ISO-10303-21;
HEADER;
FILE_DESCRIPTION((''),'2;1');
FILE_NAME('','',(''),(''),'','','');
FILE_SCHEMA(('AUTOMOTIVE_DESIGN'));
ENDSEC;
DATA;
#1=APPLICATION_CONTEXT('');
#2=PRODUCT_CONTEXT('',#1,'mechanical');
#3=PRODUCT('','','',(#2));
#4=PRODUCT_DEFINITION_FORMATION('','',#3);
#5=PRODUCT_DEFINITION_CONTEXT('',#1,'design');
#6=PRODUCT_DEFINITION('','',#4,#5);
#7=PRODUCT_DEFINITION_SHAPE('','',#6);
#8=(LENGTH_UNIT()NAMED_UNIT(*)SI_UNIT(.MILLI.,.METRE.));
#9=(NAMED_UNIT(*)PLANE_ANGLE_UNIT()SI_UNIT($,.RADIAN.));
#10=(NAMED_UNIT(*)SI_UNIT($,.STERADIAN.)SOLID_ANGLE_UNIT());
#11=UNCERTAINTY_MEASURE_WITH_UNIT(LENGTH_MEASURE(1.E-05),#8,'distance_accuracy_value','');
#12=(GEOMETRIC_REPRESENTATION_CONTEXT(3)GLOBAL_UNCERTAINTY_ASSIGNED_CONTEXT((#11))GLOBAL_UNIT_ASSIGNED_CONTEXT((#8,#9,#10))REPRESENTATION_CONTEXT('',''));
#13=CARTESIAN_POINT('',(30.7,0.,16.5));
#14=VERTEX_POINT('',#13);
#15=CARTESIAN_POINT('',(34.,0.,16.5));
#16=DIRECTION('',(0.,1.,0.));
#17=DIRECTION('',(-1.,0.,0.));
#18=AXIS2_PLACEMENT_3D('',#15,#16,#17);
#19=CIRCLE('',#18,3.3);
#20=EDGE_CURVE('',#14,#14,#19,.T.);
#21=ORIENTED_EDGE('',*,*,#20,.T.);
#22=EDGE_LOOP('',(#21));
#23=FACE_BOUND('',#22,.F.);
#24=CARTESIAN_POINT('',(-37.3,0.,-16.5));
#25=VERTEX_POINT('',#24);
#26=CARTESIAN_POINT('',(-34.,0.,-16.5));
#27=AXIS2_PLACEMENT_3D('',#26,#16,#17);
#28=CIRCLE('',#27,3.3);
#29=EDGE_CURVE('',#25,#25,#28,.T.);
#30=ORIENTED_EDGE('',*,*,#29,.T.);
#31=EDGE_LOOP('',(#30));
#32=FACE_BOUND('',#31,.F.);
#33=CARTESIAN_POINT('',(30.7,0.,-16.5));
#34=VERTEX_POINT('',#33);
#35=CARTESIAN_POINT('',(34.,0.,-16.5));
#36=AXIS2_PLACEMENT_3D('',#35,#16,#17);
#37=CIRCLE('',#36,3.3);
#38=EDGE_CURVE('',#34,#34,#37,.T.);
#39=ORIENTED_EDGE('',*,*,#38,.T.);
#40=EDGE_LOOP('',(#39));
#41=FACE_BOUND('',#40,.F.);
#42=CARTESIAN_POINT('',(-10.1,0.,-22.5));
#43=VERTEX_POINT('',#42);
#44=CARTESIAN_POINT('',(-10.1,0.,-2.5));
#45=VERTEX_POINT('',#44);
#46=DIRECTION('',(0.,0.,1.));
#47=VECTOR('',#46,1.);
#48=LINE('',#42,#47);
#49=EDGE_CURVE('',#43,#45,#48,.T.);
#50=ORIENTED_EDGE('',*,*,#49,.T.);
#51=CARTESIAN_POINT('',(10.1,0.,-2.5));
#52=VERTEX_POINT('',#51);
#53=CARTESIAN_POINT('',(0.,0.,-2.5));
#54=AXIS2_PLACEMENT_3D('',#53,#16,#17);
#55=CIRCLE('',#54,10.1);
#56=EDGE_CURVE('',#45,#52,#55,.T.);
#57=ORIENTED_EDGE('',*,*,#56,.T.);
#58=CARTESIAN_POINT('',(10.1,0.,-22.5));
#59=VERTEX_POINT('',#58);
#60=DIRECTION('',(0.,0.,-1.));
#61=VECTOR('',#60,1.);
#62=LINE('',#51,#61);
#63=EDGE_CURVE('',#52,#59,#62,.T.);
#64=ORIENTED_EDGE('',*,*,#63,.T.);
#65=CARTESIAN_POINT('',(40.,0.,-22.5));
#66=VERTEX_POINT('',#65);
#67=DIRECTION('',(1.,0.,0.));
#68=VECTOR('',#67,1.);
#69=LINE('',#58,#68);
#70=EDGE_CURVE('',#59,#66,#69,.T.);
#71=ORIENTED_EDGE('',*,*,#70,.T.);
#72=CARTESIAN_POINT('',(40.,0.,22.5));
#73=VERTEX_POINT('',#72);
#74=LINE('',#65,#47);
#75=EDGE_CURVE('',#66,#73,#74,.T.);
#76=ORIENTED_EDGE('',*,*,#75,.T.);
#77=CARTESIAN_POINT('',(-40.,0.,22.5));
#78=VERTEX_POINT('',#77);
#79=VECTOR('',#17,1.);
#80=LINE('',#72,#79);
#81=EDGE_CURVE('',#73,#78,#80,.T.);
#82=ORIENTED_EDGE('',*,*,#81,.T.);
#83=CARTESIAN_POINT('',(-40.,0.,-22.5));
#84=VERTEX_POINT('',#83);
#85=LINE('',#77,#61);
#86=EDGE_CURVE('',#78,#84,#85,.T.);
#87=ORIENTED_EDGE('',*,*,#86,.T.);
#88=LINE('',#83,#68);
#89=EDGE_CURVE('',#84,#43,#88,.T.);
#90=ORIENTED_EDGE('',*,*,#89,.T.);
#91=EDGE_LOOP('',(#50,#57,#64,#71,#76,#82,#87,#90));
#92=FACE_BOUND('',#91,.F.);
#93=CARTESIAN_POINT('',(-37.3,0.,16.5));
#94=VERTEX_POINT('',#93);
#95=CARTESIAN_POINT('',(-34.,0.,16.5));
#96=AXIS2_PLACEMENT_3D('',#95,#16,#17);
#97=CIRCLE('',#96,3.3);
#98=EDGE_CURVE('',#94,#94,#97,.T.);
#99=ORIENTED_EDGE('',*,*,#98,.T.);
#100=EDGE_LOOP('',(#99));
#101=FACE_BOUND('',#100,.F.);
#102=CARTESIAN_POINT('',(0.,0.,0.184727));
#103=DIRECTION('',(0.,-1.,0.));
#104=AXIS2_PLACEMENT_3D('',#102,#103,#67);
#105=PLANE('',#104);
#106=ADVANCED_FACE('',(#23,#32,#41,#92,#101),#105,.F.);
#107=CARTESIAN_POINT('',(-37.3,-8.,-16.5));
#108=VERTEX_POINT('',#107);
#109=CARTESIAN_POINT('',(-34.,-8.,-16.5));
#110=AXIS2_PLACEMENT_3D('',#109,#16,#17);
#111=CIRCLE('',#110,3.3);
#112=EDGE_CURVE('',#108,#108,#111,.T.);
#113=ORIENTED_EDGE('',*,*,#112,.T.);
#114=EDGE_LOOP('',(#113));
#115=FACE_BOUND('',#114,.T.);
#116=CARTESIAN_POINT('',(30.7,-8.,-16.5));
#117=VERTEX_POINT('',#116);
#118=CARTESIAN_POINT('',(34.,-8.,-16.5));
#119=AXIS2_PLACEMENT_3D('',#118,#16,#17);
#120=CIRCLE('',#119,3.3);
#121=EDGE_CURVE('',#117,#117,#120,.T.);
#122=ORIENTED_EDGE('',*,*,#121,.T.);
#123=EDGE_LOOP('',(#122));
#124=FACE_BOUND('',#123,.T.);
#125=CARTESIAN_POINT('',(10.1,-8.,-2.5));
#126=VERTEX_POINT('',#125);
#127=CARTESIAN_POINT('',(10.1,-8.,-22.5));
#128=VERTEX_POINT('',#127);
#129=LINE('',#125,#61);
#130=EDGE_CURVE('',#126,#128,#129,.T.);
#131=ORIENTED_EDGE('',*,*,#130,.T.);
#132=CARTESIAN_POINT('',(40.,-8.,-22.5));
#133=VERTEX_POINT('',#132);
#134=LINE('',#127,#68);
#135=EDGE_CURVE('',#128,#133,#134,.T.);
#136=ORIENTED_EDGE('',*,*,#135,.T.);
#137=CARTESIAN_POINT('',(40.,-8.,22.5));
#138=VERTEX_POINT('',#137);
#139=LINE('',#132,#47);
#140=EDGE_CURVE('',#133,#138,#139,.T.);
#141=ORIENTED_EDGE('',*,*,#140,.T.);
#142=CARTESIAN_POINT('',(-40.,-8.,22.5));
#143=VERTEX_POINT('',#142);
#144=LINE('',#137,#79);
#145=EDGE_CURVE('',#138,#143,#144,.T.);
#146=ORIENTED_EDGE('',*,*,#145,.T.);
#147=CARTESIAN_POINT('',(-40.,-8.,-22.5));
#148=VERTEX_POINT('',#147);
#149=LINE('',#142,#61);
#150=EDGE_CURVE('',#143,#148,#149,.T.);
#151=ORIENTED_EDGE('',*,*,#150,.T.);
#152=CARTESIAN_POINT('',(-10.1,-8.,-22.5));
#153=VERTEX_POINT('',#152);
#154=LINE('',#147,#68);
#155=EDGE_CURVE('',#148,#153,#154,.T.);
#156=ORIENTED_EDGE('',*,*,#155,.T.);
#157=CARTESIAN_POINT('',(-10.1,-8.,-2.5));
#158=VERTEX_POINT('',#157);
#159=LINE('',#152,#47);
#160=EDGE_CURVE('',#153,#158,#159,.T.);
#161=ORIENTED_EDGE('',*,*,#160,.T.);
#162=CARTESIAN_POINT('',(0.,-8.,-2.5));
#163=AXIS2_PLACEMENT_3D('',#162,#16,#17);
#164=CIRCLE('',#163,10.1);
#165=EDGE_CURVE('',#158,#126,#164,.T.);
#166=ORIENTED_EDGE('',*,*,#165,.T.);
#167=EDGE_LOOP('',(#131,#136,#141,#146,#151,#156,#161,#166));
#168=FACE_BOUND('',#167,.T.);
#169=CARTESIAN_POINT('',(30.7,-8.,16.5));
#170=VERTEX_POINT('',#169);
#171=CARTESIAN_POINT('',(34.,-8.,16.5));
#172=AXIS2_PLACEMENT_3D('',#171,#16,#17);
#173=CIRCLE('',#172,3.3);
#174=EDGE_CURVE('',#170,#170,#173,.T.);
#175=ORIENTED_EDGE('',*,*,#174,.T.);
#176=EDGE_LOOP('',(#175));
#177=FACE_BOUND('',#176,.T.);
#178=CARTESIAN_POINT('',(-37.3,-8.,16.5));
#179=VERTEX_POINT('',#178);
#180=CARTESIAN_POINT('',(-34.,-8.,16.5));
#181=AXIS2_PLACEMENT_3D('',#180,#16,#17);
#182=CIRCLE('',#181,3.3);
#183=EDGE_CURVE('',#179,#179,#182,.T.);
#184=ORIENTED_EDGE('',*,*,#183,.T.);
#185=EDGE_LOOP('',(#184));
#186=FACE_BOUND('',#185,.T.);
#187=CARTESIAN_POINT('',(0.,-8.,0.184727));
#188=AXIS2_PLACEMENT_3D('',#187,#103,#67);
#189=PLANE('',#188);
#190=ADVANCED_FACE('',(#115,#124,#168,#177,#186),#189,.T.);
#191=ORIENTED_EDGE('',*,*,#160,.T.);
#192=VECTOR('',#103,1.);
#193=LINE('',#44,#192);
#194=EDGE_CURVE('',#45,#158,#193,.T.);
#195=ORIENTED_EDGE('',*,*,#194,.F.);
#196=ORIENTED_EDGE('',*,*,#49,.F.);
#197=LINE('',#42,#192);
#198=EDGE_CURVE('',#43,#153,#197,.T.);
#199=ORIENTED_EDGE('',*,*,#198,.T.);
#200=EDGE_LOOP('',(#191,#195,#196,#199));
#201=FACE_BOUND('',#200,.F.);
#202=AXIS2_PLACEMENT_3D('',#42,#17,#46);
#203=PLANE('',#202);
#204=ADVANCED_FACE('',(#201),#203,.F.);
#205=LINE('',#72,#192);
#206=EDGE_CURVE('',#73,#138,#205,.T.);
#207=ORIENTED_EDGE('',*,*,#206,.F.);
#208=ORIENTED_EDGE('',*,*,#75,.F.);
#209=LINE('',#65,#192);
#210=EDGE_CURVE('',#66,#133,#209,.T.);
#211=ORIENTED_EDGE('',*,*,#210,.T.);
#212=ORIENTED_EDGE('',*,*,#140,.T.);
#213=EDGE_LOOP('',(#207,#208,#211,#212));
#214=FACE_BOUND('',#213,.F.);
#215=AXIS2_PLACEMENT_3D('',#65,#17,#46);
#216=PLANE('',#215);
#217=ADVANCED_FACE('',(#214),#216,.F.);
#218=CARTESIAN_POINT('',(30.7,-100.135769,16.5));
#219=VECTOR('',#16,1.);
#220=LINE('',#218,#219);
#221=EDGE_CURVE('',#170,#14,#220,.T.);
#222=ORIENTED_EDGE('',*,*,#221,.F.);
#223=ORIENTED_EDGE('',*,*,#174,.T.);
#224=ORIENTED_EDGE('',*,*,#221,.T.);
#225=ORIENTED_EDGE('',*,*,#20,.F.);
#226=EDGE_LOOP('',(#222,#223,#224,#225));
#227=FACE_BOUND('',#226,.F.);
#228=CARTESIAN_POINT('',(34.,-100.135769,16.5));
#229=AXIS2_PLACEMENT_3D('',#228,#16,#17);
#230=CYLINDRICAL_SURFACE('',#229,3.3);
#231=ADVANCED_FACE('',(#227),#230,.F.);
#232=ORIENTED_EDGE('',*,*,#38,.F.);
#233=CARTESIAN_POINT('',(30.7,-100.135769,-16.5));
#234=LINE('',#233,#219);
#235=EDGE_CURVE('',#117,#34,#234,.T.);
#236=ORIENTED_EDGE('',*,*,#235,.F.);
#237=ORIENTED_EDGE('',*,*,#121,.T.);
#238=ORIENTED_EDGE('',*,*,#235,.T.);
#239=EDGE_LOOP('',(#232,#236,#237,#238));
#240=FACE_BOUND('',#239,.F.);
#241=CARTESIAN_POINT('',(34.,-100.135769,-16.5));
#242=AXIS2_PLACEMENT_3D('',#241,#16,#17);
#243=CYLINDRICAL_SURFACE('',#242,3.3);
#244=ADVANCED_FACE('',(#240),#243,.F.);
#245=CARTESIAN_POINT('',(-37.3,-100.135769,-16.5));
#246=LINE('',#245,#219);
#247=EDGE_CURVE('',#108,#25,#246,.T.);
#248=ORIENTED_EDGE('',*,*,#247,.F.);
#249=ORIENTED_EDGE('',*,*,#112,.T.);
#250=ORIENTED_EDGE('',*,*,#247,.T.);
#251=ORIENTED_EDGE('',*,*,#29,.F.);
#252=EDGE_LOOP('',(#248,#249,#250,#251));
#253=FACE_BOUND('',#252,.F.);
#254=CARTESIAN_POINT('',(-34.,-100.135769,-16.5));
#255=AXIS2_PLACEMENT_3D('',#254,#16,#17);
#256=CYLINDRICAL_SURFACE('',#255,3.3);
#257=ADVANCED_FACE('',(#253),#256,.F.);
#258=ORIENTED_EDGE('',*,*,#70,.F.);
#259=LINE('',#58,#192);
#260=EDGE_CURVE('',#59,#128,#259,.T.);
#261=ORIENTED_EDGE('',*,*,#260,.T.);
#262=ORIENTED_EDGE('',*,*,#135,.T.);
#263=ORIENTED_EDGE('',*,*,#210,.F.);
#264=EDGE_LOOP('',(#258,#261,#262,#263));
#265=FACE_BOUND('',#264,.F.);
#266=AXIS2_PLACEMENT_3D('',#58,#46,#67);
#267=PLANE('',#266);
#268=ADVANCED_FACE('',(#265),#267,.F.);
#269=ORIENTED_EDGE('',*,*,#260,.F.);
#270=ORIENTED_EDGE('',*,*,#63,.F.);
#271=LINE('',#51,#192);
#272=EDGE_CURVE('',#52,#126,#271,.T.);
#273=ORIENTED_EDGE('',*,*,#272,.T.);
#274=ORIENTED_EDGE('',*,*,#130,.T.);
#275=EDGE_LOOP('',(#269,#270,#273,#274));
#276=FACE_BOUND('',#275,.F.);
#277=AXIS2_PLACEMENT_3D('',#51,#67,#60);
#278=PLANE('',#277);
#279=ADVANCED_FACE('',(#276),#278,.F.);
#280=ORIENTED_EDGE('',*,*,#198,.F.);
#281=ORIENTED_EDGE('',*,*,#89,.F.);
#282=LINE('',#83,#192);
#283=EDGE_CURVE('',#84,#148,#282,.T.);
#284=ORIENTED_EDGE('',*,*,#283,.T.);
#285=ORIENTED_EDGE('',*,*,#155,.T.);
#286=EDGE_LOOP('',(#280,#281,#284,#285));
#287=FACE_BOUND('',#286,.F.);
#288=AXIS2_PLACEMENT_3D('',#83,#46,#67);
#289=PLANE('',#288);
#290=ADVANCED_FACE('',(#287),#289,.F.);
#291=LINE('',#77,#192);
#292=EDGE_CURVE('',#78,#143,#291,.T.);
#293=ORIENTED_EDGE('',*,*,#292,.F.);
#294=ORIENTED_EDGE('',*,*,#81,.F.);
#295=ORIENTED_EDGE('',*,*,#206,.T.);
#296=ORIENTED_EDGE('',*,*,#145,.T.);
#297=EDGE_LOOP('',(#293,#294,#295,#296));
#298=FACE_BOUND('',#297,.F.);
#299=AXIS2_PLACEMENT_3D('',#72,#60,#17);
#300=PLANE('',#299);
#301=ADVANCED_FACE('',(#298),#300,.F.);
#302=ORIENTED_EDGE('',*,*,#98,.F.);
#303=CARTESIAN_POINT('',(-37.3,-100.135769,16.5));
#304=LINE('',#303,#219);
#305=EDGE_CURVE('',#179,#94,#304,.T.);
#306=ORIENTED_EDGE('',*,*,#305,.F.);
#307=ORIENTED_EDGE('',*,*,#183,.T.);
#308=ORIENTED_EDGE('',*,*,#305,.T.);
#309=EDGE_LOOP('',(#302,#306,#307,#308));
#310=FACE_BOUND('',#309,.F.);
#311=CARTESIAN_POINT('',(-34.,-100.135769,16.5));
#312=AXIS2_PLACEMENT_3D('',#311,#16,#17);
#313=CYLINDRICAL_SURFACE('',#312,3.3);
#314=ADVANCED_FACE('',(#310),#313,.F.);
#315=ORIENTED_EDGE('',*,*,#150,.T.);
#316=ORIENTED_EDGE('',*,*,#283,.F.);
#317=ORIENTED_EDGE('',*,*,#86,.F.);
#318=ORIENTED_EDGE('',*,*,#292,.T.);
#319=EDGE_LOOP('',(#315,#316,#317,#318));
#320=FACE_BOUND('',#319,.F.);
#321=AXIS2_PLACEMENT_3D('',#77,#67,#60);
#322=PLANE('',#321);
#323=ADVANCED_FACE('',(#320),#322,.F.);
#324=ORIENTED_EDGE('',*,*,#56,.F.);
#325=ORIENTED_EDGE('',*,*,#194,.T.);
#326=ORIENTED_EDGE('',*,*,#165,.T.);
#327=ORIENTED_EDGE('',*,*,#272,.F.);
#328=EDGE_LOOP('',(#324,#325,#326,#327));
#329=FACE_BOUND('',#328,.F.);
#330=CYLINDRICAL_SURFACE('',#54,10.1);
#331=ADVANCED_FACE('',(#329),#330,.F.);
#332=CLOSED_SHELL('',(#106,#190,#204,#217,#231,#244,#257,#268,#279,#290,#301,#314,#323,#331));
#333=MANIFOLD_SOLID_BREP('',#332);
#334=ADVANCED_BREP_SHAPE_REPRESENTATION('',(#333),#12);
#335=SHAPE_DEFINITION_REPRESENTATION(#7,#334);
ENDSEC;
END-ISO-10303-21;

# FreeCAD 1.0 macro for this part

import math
import FreeCAD as App
import Part
import Sketcher

V = App.Vector

doc = App.newDocument("Part")
body = doc.addObject("PartDesign::Body", "Body")

# Sketch on XZ plane
sketch1 = body.newObject("Sketcher::SketchObject", "Sketch")
sketch1.AttachmentSupport = (doc.getObject("XZ_Plane"), [""])
sketch1.MapMode = "FlatFace"
sketch1.addGeometry(Part.LineSegment(V(40, 22, 0), V(-40, 22, 0)), False)
sketch1.addGeometry(Part.LineSegment(V(-40, 22, 0), V(-40, -22, 0)), False)
sketch1.addGeometry(Part.LineSegment(V(-40, -22, 0), V(-10, -22, 0)), False)
sketch1.addGeometry(Part.LineSegment(V(-10, -22, 0), V(-10, -2, 0)), False)
sketch1.addGeometry(Part.ArcOfCircle(Part.Circle(V(0, -2, 0), V(0, 0, 1), 10), math.radians(0), math.radians(180)), False)
sketch1.addGeometry(Part.LineSegment(V(10, -2, 0), V(10, -22, 0)), False)
sketch1.addGeometry(Part.LineSegment(V(10, -22, 0), V(40, -22, 0)), False)
sketch1.addGeometry(Part.LineSegment(V(40, -22, 0), V(40, 22, 0)), False)
sketch1.addConstraint(Sketcher.Constraint("Coincident", 0, 2, 1, 1))
sketch1.addConstraint(Sketcher.Constraint("Coincident", 1, 2, 2, 1))
sketch1.addConstraint(Sketcher.Constraint("Coincident", 2, 2, 3, 1))
sketch1.addConstraint(Sketcher.Constraint("Tangent", 3, 2, 4, 2))
sketch1.addConstraint(Sketcher.Constraint("Tangent", 4, 1, 5, 1))
sketch1.addConstraint(Sketcher.Constraint("Coincident", 5, 2, 6, 1))
sketch1.addConstraint(Sketcher.Constraint("Coincident", 6, 2, 7, 1))
sketch1.addConstraint(Sketcher.Constraint("Coincident", 7, 2, 0, 1))
sketch1.addConstraint(Sketcher.Constraint("Horizontal", 0))
sketch1.addConstraint(Sketcher.Constraint("Vertical", 1))
sketch1.addConstraint(Sketcher.Constraint("Horizontal", 2))
sketch1.addConstraint(Sketcher.Constraint("Vertical", 3))
sketch1.addConstraint(Sketcher.Constraint("Vertical", 5))
sketch1.addConstraint(Sketcher.Constraint("Horizontal", 6))
sketch1.addConstraint(Sketcher.Constraint("Vertical", 7))
sketch1.addConstraint(Sketcher.Constraint("Symmetric", 0, 2, 6, 2, -1, 1))
sketch1.addConstraint(Sketcher.Constraint("Symmetric", 2, 2, 5, 2, -2))
sketch1.addConstraint(Sketcher.Constraint("Radius", 4, 10.1))
sketch1.addConstraint(Sketcher.Constraint("DistanceX", 0, 2, 0, 1, 80.0))
sketch1.addConstraint(Sketcher.Constraint("DistanceY", 1, 2, 1, 1, 45.0))
sketch1.addConstraint(Sketcher.Constraint("DistanceY", 3, 1, 3, 2, 20.0))
pad1 = body.newObject("PartDesign::Pad", "Pad")
pad1.Profile = sketch1
pad1.Length = 8

# Sketch on XZ plane
sketch2 = body.newObject("Sketcher::SketchObject", "Sketch001")
sketch2.AttachmentSupport = (doc.getObject("XZ_Plane"), [""])
sketch2.MapMode = "FlatFace"
sketch2.AttachmentOffset = App.Placement(V(0, 0, 8), App.Rotation())
sketch2.addGeometry(Part.Circle(V(-34, 16.5, 0), V(0, 0, 1), 3.3), False)
sketch2.addGeometry(Part.Circle(V(-34, -16.5, 0), V(0, 0, 1), 3.3), False)
sketch2.addGeometry(Part.Circle(V(34, -16.5, 0), V(0, 0, 1), 3.3), False)
sketch2.addGeometry(Part.Circle(V(34, 16.5, 0), V(0, 0, 1), 3.3), False)
sketch2.addConstraint(Sketcher.Constraint("Equal", 0, 1))
sketch2.addConstraint(Sketcher.Constraint("Equal", 1, 2))
sketch2.addConstraint(Sketcher.Constraint("Equal", 2, 3))
sketch2.addConstraint(Sketcher.Constraint("Symmetric", 0, 3, 2, 3, -1, 1))
sketch2.addConstraint(Sketcher.Constraint("Symmetric", 1, 3, 3, 3, -1, 1))
sketch2.addConstraint(Sketcher.Constraint("Symmetric", 1, 3, 2, 3, -2))
sketch2.addConstraint(Sketcher.Constraint("Diameter", 0, 6.6))
sketch2.addConstraint(Sketcher.Constraint("DistanceX", 0, 3, -1, 1, 34.0))
sketch2.addConstraint(Sketcher.Constraint("DistanceY", 1, 3, 0, 3, 33.0))
doc.recompute()
hole = body.newObject("PartDesign::Hole", "Hole")
hole.Profile = sketch2
hole.ThreadType = "None"
hole.Diameter = 6.6
hole.DepthType = "ThroughAll"

doc.recompute()
